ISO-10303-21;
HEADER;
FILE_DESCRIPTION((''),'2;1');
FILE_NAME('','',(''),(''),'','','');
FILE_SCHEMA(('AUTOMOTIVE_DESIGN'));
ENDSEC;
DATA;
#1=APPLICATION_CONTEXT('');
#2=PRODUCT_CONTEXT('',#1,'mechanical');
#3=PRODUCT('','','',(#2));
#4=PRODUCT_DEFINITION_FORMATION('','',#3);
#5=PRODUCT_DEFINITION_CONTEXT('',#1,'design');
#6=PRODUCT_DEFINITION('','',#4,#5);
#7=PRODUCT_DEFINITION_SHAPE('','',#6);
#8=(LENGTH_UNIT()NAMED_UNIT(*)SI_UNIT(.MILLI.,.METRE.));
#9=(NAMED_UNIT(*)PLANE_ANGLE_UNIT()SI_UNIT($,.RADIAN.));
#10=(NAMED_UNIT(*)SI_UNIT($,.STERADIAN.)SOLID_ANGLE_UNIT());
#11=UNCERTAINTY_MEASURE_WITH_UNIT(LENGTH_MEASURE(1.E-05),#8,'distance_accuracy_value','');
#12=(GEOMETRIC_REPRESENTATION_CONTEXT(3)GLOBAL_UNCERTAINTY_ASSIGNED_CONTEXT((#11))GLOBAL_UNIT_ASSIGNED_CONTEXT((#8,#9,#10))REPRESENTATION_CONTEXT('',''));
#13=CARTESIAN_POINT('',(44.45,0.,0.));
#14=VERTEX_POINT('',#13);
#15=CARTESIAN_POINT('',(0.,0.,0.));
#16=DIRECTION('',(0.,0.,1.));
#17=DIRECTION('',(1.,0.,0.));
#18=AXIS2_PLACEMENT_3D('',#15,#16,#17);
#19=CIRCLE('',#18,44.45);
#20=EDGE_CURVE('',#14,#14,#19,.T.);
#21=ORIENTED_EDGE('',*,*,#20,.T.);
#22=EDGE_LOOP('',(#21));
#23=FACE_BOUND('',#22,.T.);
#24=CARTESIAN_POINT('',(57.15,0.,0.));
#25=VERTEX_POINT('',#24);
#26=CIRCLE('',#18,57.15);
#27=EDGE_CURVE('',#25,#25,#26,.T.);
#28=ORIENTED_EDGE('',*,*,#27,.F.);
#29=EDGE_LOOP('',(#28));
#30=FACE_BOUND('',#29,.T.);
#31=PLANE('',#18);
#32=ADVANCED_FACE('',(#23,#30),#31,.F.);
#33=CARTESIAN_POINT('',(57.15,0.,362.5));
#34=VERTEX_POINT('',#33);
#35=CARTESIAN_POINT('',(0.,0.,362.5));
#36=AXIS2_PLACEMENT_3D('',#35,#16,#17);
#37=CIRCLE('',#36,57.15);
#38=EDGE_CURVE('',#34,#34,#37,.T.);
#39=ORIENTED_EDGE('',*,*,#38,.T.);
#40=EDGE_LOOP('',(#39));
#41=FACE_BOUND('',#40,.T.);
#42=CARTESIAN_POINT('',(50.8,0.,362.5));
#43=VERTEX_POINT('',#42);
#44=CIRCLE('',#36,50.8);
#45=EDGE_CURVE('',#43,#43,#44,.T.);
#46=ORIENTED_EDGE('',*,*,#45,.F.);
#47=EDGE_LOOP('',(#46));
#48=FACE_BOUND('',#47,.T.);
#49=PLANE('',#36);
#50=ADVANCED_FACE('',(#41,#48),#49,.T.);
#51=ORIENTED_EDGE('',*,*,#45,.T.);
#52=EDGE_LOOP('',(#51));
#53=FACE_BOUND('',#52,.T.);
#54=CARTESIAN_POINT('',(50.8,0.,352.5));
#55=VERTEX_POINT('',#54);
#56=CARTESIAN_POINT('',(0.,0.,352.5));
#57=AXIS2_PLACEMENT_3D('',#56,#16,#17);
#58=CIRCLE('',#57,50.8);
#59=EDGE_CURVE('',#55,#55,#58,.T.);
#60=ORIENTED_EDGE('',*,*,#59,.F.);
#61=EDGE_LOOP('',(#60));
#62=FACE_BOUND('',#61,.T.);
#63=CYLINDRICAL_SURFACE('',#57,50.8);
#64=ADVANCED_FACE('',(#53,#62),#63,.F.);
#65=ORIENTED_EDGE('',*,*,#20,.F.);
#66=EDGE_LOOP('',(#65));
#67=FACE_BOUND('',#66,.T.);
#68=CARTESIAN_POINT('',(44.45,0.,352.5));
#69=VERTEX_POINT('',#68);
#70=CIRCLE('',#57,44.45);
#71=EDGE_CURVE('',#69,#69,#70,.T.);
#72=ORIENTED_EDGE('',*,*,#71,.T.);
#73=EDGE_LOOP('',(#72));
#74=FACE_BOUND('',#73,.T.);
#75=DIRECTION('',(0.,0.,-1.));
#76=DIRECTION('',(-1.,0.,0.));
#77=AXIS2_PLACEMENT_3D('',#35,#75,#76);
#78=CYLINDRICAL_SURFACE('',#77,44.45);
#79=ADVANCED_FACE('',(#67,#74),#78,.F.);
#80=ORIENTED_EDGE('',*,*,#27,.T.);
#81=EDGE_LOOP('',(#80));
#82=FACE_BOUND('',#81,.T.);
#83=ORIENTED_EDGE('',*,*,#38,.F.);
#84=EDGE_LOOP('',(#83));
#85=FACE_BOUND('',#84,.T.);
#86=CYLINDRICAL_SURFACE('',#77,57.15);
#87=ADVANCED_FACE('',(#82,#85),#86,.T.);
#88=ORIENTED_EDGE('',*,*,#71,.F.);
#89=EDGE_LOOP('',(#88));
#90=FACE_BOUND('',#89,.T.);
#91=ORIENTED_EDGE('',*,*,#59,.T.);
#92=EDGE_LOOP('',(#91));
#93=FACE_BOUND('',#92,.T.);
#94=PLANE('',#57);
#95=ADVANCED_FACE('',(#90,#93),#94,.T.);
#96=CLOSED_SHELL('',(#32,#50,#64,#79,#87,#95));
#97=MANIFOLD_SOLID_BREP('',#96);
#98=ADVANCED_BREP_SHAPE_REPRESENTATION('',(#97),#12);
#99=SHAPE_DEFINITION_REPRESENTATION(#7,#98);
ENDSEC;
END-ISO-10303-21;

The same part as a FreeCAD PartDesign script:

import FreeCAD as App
import Part
import Sketcher

V = App.Vector
Q = App.Units.Quantity

doc = App.newDocument("Part")
params = doc.addObject("Spreadsheet::Sheet", "Params")
for row, (alias, value) in enumerate([
    ("sketch1_diameter", "4.5 in"),
    ("sketch1_diameter2", "3.5 in"),
    ("pad1_length", "362.5 mm"),
    ("sketch2_diameter", "4 in"),
    ("sketch2_diameter2", "3.5 in"),
    ("pocket1_length", "10 mm"),
], start=1):
    params.set(f"A{row}", alias)
    params.set(f"B{row}", "=" + value)
    params.setAlias(f"B{row}", alias)

body = doc.addObject("PartDesign::Body", "Body")

sketch1 = body.newObject("Sketcher::SketchObject", "Sketch")
sketch1.AttachmentSupport = (doc.getObject("XY_Plane"), [""])
sketch1.MapMode = "FlatFace"
sketch1.addGeometry(Part.Circle(V(0, 0, 0), V(0, 0, 1), 57), False)
sketch1.addGeometry(Part.Circle(V(0, 0, 0), V(0, 0, 1), 44), False)
sketch1.addConstraint(Sketcher.Constraint("Coincident", 0, 3, -1, 1))
sketch1.addConstraint(Sketcher.Constraint("Coincident", 1, 3, -1, 1))
sketch1.addConstraint(Sketcher.Constraint("Diameter", 0, Q("4.5 in")))
sketch1.addConstraint(Sketcher.Constraint("Diameter", 1, Q("3.5 in")))
sketch1.setExpression("Constraints[2]", "Params.sketch1_diameter")
sketch1.setExpression("Constraints[3]", "Params.sketch1_diameter2")
pad1 = body.newObject("PartDesign::Pad", "Pad")
pad1.Profile = sketch1
pad1.setExpression("Length", "Params.pad1_length")

sketch2 = body.newObject("Sketcher::SketchObject", "Sketch001")
sketch2.AttachmentSupport = (doc.getObject("XY_Plane"), [""])
sketch2.MapMode = "FlatFace"
sketch2.AttachmentOffset = App.Placement(V(0, 0, 362.5), App.Rotation())
sketch2.addGeometry(Part.Circle(V(0, 0, 0), V(0, 0, 1), 51), False)
sketch2.addGeometry(Part.Circle(V(0, 0, 0), V(0, 0, 1), 44), False)
sketch2.addConstraint(Sketcher.Constraint("Coincident", 0, 3, -1, 1))
sketch2.addConstraint(Sketcher.Constraint("Coincident", 1, 3, -1, 1))
sketch2.addConstraint(Sketcher.Constraint("Diameter", 0, Q("4 in")))
sketch2.addConstraint(Sketcher.Constraint("Diameter", 1, Q("3.5 in")))
sketch2.setExpression("Constraints[2]", "Params.sketch2_diameter")
sketch2.setExpression("Constraints[3]", "Params.sketch2_diameter2")
pocket1 = body.newObject("PartDesign::Pocket", "Pocket")
pocket1.Profile = sketch2
pocket1.setExpression("Length", "Params.pocket1_length")

doc.recompute()
